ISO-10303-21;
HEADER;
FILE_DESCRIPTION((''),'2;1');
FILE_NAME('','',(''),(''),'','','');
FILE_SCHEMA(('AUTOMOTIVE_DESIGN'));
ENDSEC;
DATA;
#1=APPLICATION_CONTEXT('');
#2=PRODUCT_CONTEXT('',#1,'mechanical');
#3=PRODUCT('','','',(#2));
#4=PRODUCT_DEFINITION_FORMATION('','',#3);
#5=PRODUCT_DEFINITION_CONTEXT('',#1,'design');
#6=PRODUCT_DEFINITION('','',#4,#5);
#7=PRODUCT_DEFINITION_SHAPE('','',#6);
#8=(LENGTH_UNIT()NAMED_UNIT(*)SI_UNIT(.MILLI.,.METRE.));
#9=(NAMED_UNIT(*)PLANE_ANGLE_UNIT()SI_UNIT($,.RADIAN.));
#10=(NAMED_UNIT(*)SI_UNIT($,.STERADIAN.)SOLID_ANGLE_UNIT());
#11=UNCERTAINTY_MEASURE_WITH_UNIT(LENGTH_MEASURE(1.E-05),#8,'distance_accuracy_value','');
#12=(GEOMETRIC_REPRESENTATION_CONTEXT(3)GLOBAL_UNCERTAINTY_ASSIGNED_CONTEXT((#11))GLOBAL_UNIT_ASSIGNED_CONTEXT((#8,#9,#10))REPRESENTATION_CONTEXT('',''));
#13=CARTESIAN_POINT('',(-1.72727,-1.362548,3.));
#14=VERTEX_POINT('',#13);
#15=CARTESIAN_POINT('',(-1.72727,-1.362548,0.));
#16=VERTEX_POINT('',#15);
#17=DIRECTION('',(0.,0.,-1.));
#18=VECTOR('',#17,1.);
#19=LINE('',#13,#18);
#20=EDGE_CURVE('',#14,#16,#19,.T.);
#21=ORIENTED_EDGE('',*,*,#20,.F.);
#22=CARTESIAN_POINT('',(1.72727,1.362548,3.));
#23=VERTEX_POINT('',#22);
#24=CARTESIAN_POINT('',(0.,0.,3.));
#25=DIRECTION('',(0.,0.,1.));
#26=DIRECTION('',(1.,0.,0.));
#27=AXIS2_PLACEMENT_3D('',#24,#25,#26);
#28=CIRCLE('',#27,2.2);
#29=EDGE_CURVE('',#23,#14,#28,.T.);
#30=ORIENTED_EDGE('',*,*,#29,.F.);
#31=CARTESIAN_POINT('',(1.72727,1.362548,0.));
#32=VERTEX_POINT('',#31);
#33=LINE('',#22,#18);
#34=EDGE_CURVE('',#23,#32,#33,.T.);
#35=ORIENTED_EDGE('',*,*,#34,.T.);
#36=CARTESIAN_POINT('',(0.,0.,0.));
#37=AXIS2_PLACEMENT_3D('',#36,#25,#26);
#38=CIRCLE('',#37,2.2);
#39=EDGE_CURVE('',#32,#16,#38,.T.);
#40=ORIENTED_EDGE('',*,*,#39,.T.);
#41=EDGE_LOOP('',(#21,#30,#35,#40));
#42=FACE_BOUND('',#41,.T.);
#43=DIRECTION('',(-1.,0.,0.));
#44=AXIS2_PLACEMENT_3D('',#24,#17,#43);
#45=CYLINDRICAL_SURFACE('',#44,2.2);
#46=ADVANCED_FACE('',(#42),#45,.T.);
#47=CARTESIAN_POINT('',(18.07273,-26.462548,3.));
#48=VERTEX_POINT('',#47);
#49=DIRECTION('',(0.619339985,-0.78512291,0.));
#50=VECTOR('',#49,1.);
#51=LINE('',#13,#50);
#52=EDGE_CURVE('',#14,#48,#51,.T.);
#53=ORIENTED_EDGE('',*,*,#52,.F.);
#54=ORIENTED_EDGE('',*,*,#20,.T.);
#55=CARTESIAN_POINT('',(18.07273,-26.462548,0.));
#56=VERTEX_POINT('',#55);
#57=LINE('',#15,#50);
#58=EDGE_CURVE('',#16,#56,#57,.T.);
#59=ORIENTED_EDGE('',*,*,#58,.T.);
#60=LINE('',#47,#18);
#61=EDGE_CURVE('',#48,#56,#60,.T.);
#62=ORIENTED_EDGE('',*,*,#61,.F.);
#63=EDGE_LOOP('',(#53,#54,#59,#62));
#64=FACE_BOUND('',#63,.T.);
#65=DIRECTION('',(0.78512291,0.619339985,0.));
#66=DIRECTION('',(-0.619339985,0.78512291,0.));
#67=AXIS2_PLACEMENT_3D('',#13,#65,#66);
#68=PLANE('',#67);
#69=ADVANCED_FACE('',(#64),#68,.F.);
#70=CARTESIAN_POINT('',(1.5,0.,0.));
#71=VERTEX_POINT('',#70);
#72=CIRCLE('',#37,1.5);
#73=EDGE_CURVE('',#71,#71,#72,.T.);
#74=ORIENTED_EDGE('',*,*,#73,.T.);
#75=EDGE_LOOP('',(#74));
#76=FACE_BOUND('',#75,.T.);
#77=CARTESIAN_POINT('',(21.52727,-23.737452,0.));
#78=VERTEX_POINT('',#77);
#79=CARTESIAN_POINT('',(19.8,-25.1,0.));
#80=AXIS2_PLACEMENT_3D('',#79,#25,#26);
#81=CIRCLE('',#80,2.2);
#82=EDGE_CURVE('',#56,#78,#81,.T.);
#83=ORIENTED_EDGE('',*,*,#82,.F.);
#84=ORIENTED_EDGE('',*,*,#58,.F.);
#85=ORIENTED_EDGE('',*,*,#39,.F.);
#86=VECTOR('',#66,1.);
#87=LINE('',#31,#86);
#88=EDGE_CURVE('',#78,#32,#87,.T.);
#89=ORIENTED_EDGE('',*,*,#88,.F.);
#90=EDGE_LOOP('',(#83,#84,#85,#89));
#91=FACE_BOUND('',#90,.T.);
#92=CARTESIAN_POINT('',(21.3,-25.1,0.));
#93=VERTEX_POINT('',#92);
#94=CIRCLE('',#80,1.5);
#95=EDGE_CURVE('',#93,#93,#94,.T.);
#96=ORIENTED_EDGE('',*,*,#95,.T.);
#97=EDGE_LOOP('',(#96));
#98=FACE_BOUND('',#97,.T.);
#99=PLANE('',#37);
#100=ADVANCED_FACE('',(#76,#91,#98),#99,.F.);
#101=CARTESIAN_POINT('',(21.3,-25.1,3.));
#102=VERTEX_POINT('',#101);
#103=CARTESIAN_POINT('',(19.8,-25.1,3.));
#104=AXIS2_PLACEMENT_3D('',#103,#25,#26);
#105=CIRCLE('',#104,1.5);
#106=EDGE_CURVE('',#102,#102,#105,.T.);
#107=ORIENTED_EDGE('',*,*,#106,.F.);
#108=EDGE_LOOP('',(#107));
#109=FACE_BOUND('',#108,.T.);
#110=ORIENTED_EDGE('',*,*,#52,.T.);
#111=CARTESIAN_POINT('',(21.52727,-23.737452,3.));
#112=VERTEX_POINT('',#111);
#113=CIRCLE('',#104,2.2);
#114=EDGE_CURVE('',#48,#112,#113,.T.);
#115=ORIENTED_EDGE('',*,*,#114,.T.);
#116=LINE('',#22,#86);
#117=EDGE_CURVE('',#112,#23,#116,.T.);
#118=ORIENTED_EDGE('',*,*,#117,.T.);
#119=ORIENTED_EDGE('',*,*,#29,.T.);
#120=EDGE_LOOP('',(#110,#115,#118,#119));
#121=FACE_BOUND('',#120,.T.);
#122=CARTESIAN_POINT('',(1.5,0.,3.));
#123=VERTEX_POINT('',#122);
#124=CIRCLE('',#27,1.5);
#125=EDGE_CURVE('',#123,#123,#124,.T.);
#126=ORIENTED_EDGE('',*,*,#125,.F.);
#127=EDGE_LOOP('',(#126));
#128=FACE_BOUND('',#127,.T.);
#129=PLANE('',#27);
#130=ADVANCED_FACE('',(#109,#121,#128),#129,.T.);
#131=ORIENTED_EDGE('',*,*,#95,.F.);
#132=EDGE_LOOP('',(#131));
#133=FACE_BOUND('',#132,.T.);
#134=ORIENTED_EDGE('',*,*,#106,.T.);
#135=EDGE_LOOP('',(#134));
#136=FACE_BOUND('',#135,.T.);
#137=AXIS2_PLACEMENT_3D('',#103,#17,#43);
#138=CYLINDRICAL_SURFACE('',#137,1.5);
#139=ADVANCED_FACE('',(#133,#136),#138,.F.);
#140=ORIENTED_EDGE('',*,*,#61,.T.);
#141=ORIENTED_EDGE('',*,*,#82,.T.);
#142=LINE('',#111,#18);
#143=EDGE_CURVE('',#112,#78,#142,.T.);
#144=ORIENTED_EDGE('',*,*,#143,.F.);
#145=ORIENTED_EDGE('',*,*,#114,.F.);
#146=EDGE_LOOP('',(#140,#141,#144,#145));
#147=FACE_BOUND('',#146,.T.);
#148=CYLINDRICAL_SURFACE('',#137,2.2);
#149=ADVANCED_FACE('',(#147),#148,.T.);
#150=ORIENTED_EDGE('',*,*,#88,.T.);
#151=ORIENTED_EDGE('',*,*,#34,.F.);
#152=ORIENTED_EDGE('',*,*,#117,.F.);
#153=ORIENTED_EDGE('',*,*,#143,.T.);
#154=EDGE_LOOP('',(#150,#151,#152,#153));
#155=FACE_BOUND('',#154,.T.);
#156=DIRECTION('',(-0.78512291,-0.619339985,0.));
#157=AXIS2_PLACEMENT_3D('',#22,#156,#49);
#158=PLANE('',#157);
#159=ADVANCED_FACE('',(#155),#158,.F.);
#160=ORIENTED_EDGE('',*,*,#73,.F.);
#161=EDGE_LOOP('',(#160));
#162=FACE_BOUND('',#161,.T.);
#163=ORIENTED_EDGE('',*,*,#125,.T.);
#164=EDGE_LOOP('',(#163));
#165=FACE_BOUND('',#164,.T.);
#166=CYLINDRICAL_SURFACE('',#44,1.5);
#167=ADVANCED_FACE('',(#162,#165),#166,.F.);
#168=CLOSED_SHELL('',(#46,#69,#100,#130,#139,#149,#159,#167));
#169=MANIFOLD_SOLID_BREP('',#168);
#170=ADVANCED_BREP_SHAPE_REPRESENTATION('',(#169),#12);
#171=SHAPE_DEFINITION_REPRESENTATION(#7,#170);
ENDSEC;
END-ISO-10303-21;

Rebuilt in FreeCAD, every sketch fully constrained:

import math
import FreeCAD as App
import Part
import Sketcher
from FreeCAD import Vector
Q = App.Units.Quantity

doc = App.newDocument("Part")
params = doc.addObject("Spreadsheet::Sheet", "Params")
for row, (alias, value) in enumerate([
    ("sketch1_diameter", "3 mm"),
    ("sketch1_radius", "2.2 mm"),
    ("pad1_length", "3 mm"),
], start=1):
    params.set(f"A{row}", alias)
    params.set(f"B{row}", "=" + value)
    params.setAlias(f"B{row}", alias)

body = doc.addObject("PartDesign::Body", "Body")

sketch1 = body.newObject("Sketcher::SketchObject", "Sketch")
sketch1.AttachmentSupport = (doc.getObject("XY_Plane"), [""])
sketch1.MapMode = "FlatFace"
sketch1.addGeometry(Part.LineSegment(Vector(21.5, -23.7, 0), Vector(1.7, 1.4, 0)), False)
sketch1.addGeometry(Part.ArcOfCircle(Part.Circle(Vector(0, 0, 0), Vector(0, 0, 1), 2.2), math.radians(38), math.radians(218)), False)
sketch1.addGeometry(Part.LineSegment(Vector(-1.7, -1.4, 0), Vector(18.1, -26.5, 0)), False)
sketch1.addGeometry(Part.ArcOfCircle(Part.Circle(Vector(19.8, -25.1, 0), Vector(0, 0, 1), 2.2), math.radians(-142), math.radians(38)), False)
sketch1.addGeometry(Part.Circle(Vector(19.8, -25.1, 0), Vector(0, 0, 1), 1.5), False)
sketch1.addGeometry(Part.Circle(Vector(0, 0, 0), Vector(0, 0, 1), 1.5), False)
sketch1.addConstraint(Sketcher.Constraint("Tangent", 0, 2, 1, 1))
sketch1.addConstraint(Sketcher.Constraint("Tangent", 1, 2, 2, 1))
sketch1.addConstraint(Sketcher.Constraint("Tangent", 2, 2, 3, 1))
sketch1.addConstraint(Sketcher.Constraint("Tangent", 3, 2, 0, 1))
sketch1.addConstraint(Sketcher.Constraint("Coincident", 1, 3, -1, 1))
sketch1.addConstraint(Sketcher.Constraint("Coincident", 5, 3, -1, 1))
sketch1.addConstraint(Sketcher.Constraint("Coincident", 4, 3, 3, 3))
sketch1.addConstraint(Sketcher.Constraint("Equal", 1, 3))
sketch1.addConstraint(Sketcher.Constraint("Equal", 4, 5))
sketch1.addConstraint(Sketcher.Constraint("Diameter", 4, Q("3 mm")))
sketch1.addConstraint(Sketcher.Constraint("Radius", 1, Q("2.2 mm")))
sketch1.addConstraint(Sketcher.Constraint("DistanceX", -1, 1, 3, 3, Q("19.8 mm")))
sketch1.addConstraint(Sketcher.Constraint("DistanceY", 3, 3, -1, 1, Q("25.1 mm")))
sketch1.setExpression("Constraints[9]", "Params.sketch1_diameter")
sketch1.setExpression("Constraints[10]", "Params.sketch1_radius")
pad1 = body.newObject("PartDesign::Pad", "Pad")
pad1.Profile = sketch1
pad1.setExpression("Length", "Params.pad1_length")

doc.recompute()
